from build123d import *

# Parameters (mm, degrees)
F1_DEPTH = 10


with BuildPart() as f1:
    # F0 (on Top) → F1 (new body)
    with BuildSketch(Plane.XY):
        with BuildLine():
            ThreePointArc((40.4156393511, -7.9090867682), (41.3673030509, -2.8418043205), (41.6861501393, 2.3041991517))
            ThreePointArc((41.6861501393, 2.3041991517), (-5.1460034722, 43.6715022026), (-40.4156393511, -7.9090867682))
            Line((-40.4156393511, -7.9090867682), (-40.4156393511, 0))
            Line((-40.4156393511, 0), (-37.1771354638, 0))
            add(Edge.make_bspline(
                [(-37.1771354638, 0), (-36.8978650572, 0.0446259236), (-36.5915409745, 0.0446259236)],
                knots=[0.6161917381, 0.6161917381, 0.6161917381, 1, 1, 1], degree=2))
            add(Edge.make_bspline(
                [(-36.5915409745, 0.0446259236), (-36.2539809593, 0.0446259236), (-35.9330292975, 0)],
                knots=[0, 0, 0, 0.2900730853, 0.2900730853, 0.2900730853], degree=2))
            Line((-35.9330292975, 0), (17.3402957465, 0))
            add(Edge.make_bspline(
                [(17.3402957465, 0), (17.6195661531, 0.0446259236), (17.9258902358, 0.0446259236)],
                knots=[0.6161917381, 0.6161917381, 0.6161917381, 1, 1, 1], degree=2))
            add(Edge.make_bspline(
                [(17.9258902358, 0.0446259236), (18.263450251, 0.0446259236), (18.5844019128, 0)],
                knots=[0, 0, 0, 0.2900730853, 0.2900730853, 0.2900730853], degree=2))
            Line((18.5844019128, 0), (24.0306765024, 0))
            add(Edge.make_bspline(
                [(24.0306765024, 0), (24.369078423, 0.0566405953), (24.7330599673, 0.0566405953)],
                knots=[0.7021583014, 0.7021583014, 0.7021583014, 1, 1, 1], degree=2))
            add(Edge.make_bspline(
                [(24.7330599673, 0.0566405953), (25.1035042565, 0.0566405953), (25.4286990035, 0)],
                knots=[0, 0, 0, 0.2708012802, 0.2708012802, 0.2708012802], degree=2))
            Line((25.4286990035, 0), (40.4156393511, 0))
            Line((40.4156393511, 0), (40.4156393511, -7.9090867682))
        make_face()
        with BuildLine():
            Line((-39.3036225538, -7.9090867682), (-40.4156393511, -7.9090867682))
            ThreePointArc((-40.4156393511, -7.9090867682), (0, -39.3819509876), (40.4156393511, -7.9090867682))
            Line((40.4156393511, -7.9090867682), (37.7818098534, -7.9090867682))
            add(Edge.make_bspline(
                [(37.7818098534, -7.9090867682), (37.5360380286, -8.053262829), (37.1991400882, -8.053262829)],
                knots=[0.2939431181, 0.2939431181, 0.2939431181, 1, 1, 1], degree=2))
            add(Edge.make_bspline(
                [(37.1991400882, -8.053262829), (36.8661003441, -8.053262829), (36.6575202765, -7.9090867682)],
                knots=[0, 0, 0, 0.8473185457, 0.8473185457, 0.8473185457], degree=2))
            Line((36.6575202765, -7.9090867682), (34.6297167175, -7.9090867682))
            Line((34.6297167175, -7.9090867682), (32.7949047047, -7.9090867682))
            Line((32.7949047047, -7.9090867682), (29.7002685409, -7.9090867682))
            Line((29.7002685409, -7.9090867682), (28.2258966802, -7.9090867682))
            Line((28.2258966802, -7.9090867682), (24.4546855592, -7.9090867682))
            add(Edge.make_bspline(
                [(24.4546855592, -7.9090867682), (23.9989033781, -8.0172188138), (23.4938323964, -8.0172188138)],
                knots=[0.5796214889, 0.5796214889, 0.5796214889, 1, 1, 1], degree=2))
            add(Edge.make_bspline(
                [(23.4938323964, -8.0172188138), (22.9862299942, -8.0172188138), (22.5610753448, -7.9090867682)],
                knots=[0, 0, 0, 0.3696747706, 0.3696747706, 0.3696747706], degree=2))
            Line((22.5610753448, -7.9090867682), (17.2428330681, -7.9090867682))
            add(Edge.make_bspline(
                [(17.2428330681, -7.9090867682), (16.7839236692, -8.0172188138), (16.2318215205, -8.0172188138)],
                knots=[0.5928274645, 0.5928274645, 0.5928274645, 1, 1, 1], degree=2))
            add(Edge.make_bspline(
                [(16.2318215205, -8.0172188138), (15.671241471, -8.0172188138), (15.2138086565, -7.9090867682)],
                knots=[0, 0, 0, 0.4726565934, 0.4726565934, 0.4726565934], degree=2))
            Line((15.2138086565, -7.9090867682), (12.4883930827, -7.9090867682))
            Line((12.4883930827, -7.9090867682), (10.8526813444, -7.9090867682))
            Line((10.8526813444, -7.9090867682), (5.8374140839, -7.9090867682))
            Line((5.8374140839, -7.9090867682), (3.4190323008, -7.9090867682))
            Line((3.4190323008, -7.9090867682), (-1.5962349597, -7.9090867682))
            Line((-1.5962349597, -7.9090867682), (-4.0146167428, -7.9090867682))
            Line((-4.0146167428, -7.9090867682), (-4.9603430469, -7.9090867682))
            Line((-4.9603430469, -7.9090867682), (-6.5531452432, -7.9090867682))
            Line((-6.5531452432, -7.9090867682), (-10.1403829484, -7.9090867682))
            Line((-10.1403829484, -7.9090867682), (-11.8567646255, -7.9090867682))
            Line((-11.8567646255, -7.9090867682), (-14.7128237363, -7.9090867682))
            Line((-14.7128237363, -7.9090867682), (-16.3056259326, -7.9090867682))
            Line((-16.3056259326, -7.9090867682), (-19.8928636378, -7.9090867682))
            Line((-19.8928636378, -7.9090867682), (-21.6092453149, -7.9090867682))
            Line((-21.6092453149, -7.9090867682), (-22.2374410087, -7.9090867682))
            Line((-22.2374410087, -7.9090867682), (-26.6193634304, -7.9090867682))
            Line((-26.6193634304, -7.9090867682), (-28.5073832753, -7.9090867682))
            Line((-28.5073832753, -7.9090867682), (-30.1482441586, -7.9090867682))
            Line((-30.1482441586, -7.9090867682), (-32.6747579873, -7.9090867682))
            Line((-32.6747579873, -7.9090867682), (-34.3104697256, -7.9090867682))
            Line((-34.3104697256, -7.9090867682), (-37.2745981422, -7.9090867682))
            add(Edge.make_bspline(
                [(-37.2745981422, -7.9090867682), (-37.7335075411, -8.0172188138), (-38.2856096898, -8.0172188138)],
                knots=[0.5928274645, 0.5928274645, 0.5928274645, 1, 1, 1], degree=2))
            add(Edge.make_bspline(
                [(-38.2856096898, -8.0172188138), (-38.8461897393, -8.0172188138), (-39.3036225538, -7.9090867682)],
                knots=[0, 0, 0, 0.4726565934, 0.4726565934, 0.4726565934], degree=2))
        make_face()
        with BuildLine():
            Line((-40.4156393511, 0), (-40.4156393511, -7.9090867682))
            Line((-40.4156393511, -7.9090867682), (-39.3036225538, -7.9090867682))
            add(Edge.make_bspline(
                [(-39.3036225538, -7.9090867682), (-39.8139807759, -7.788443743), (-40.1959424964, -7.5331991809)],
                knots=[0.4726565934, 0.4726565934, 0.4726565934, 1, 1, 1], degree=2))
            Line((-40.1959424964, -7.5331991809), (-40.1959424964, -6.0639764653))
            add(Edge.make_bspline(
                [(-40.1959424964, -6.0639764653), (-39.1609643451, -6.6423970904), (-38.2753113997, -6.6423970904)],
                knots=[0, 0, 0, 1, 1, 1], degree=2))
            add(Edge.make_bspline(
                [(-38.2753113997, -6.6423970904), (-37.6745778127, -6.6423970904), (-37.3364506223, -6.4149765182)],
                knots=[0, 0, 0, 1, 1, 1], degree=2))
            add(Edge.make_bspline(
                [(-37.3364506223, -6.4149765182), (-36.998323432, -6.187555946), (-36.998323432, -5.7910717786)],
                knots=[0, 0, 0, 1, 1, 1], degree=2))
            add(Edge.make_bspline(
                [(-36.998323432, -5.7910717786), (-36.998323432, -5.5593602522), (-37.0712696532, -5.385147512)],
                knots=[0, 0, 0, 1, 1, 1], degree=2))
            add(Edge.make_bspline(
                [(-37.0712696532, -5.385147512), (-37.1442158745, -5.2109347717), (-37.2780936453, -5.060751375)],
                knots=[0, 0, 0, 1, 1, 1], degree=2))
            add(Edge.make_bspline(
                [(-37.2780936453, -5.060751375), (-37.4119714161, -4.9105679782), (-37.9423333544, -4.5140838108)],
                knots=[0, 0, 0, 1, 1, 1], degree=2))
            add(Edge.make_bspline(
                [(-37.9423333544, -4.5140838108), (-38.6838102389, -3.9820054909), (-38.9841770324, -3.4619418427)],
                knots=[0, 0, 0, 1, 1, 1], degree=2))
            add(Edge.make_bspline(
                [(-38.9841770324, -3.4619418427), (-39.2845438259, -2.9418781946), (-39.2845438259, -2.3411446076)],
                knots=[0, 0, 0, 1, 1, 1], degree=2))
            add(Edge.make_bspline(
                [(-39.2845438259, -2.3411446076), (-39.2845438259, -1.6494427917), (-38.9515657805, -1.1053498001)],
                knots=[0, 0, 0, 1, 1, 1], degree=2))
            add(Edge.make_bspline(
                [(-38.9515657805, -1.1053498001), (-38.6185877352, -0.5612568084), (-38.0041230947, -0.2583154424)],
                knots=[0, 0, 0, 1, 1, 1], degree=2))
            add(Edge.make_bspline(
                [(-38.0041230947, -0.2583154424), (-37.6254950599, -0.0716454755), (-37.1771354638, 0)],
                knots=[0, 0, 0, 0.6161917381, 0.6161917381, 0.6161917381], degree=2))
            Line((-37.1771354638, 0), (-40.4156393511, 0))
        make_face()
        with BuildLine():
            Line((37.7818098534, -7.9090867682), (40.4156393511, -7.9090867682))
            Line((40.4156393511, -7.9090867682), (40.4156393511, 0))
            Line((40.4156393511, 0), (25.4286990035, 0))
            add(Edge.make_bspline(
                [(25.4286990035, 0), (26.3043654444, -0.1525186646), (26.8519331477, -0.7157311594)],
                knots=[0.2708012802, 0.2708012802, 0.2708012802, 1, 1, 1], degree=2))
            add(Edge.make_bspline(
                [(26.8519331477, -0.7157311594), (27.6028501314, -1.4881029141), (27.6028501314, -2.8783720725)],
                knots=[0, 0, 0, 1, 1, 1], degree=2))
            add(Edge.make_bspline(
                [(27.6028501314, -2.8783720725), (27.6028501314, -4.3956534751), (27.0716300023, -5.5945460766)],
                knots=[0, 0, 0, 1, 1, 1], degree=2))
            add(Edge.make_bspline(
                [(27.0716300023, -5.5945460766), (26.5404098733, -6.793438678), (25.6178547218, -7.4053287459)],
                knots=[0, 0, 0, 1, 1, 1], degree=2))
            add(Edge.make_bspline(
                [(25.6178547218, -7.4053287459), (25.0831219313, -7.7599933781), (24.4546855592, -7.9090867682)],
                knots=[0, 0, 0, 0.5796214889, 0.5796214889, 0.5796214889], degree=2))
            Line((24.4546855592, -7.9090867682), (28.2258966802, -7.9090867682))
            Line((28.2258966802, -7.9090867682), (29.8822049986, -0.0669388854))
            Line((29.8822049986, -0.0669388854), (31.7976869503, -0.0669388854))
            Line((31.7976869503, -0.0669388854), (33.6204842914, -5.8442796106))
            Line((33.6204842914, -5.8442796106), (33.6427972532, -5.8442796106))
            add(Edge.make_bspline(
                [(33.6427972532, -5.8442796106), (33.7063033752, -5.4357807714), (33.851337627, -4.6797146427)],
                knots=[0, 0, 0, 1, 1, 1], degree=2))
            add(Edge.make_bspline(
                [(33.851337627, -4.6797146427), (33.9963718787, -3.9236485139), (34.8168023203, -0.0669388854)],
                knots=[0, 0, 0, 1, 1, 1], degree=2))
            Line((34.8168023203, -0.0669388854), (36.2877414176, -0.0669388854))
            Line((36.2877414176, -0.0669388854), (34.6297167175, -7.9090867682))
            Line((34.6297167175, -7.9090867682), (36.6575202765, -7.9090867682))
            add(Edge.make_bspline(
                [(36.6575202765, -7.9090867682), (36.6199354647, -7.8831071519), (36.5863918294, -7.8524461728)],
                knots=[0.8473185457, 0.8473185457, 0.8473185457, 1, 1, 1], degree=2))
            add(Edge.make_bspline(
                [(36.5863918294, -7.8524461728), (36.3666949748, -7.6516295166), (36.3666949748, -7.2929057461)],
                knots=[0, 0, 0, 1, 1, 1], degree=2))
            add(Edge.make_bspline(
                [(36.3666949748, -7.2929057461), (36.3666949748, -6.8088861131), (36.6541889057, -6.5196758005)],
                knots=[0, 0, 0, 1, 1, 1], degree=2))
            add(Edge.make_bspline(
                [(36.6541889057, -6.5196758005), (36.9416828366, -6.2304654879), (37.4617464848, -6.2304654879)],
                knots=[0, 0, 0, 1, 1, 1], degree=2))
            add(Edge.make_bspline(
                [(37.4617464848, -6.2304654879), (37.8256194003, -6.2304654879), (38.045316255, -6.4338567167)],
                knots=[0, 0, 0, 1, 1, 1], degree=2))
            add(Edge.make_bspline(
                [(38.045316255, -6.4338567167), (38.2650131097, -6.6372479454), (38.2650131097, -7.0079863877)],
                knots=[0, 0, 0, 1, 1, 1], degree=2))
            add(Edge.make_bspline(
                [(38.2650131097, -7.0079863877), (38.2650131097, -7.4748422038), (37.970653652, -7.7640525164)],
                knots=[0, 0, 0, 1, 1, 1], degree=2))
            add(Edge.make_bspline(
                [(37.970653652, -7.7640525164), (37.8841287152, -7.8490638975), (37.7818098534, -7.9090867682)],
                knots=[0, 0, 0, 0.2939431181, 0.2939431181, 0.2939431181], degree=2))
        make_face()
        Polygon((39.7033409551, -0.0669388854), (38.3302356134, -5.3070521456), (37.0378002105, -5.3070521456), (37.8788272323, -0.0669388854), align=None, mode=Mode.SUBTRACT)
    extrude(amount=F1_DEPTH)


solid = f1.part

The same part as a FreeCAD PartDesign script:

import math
import FreeCAD as App
import Part
import Sketcher

V = App.Vector

doc = App.newDocument("Part")
body = doc.addObject("PartDesign::Body", "Body")

# Sketch on XY plane
sketch1 = body.newObject("Sketcher::SketchObject", "Sketch")
sketch1.AttachmentSupport = (doc.getObject("XY_Plane"), [""])
sketch1.MapMode = "FlatFace"
sketch1.addGeometry(Part.ArcOfCircle(Part.Circle(V(0, 2.304199, 0), V(0, 0, 1), 41.68615), math.radians(0), math.radians(345.817912)), False)
sketch1.addGeometry(Part.ArcOfCircle(Part.Circle(V(0, 2.304199, 0), V(0, 0, 1), 41.68615), math.radians(-14.182088), math.radians(0)), False)
sketch1.addGeometry(Part.BSplineCurve([V(37.78181, -7.909087, 0), V(37.536038, -8.053263, 0), V(36.8661, -8.053263, 0), V(36.65752, -7.909087, 0)], [3, 1, 3], [0.293943118, 1, 1.697971032], False, 2, [1, 1, 1, 1], False), False)
sketch1.addGeometry(Part.BSplineCurve([V(36.65752, -7.909087, 0), V(36.619935, -7.883107, 0), V(36.586392, -7.852446, 0)], [3, 3], [0.847318546, 1], False, 2, [1, 1, 1], False), False)
sketch1.addGeometry(Part.BSplineCurve([V(36.586392, -7.852446, 0), V(36.366695, -7.65163, 0), V(36.366695, -6.808886, 0), V(36.941683, -6.230465, 0), V(37.825619, -6.230465, 0), V(38.045316, -6.433857, 0)], [3, 1, 1, 1, 3], [0, 1, 2.349282297, 3.698564594, 4.642616894], False, 2, [1, 1, 1, 1, 1, 1], False), False)
sketch1.addGeometry(Part.BSplineCurve([V(38.045316, -6.433857, 0), V(38.265013, -6.637248, 0), V(38.265013, -7.474842, 0), V(37.970654, -7.764053, 0)], [3, 1, 3], [0, 1, 2.259259259], False, 2, [1, 1, 1, 1], False), False)
sketch1.addGeometry(Part.BSplineCurve([V(37.970654, -7.764053, 0), V(37.884129, -7.849064, 0), V(37.78181, -7.909087, 0)], [3, 3], [0, 0.293943118], False, 2, [1, 1, 1], False), False)
sketch1.addGeometry(Part.BSplineCurve([V(24.030677, 0, 0), V(24.369078, 0.056641, 0), V(25.103504, 0.056641, 0), V(25.428699, 0, 0)], [3, 1, 3], [0.702158301, 1, 1.303130085], False, 2, [1, 1, 1, 1], False), False)
sketch1.addGeometry(Part.BSplineCurve([V(25.428699, 0, 0), V(26.304365, -0.152519, 0), V(26.851933, -0.715731, 0)], [3, 3], [0.27080128, 1], False, 2, [1, 1, 1], False), False)
sketch1.addGeometry(Part.BSplineCurve([V(26.851933, -0.715731, 0), V(27.60285, -1.488103, 0), V(27.60285, -4.395653, 0), V(27.07163, -5.594546, 0)], [3, 1, 3], [0, 1, 2.091358025], False, 2, [1, 1, 1, 1], False), False)
sketch1.addGeometry(Part.BSplineCurve([V(27.07163, -5.594546, 0), V(26.54041, -6.793439, 0), V(25.617855, -7.405329, 0)], [3, 3], [0, 1], False, 2, [1, 1, 1], False), False)
sketch1.addGeometry(Part.BSplineCurve([V(25.617855, -7.405329, 0), V(25.083122, -7.759993, 0), V(24.454686, -7.909087, 0)], [3, 3], [0, 0.579621489], False, 2, [1, 1, 1], False), False)
sketch1.addGeometry(Part.BSplineCurve([V(24.454686, -7.909087, 0), V(23.998903, -8.017219, 0), V(22.98623, -8.017219, 0), V(22.561075, -7.909087, 0)], [3, 1, 3], [0.579621489, 1, 1.422485452], False, 2, [1, 1, 1, 1], False), False)
sketch1.addGeometry(Part.LineSegment(V(22.561075, -7.909087, 0), V(17.242833, -7.909087, 0)), False)
sketch1.addGeometry(Part.BSplineCurve([V(17.242833, -7.909087, 0), V(16.783924, -8.017219, 0), V(15.671241, -8.017219, 0), V(15.213809, -7.909087, 0)], [3, 1, 3], [0.592827465, 1, 1.413424944], False, 2, [1, 1, 1, 1], False), False)
sketch1.addGeometry(Part.LineSegment(V(15.213809, -7.909087, 0), V(-37.274598, -7.909087, 0)), False)
sketch1.addGeometry(Part.BSplineCurve([V(-37.274598, -7.909087, 0), V(-37.733508, -8.017219, 0), V(-38.84619, -8.017219, 0), V(-39.303623, -7.909087, 0)], [3, 1, 3], [0.592827465, 1, 1.413424944], False, 2, [1, 1, 1, 1], False), False)
sketch1.addGeometry(Part.BSplineCurve([V(-39.303623, -7.909087, 0), V(-39.813981, -7.788444, 0), V(-40.195942, -7.533199, 0)], [3, 3], [0.472656593, 1], False, 2, [1, 1, 1], False), False)
sketch1.addGeometry(Part.LineSegment(V(-40.195942, -7.533199, 0), V(-40.195942, -6.063976, 0)), False)
sketch1.addGeometry(Part.BSplineCurve([V(-40.195942, -6.063976, 0), V(-39.160964, -6.642397, 0), V(-37.674578, -6.642397, 0), V(-37.336451, -6.414977, 0)], [3, 1, 3], [0, 1, 1.678294574], False, 2, [1, 1, 1, 1], False), False)
sketch1.addGeometry(Part.BSplineCurve([V(-37.336451, -6.414977, 0), V(-36.998323, -6.187556, 0), V(-36.998323, -5.55936, 0), V(-37.07127, -5.385148, 0)], [3, 1, 3], [0, 1, 1.584415584], False, 2, [1, 1, 1, 1], False), False)
sketch1.addGeometry(Part.BSplineCurve([V(-37.07127, -5.385148, 0), V(-37.144216, -5.210935, 0), V(-37.278094, -5.060751, 0)], [3, 3], [0, 1], False, 2, [1, 1, 1], False), False)
sketch1.addGeometry(Part.BSplineCurve([V(-37.278094, -5.060751, 0), V(-37.411971, -4.910568, 0), V(-37.942333, -4.514084, 0)], [3, 3], [0, 1], False, 2, [1, 1, 1], False), False)
sketch1.addGeometry(Part.BSplineCurve([V(-37.942333, -4.514084, 0), V(-38.68381, -3.982005, 0), V(-38.984177, -3.461942, 0)], [3, 3], [0, 1], False, 2, [1, 1, 1], False), False)
sketch1.addGeometry(Part.BSplineCurve([V(-38.984177, -3.461942, 0), V(-39.284544, -2.941878, 0), V(-39.284544, -1.649443, 0), V(-38.951566, -1.10535, 0)], [3, 1, 3], [0, 1, 2.151428571], False, 2, [1, 1, 1, 1], False), False)
sketch1.addGeometry(Part.BSplineCurve([V(-38.951566, -1.10535, 0), V(-38.618588, -0.561257, 0), V(-38.004123, -0.258315, 0)], [3, 3], [0, 1], False, 2, [1, 1, 1], False), False)
sketch1.addGeometry(Part.BSplineCurve([V(-38.004123, -0.258315, 0), V(-37.625495, -0.071645, 0), V(-37.177135, 0, 0)], [3, 3], [0, 0.616191738], False, 2, [1, 1, 1], False), False)
sketch1.addGeometry(Part.BSplineCurve([V(-37.177135, 0, 0), V(-36.897865, 0.044626, 0), V(-36.253981, 0.044626, 0), V(-35.933029, 0, 0)], [3, 1, 3], [0.616191738, 1, 1.422945273], False, 2, [1, 1, 1, 1], False), False)
sketch1.addGeometry(Part.LineSegment(V(-35.933029, 0, 0), V(17.340296, 0, 0)), False)
sketch1.addGeometry(Part.BSplineCurve([V(17.340296, 0, 0), V(17.619566, 0.044626, 0), V(18.26345, 0.044626, 0), V(18.584402, 0, 0)], [3, 1, 3], [0.616191738, 1, 1.422945273], False, 2, [1, 1, 1, 1], False), False)
sketch1.addGeometry(Part.LineSegment(V(18.584402, 0, 0), V(24.030677, 0, 0)), False)
sketch1.addGeometry(Part.LineSegment(V(34.629717, -7.909087, 0), V(28.225897, -7.909087, 0)), False)
sketch1.addGeometry(Part.LineSegment(V(28.225897, -7.909087, 0), V(29.882205, -0.066939, 0)), False)
sketch1.addGeometry(Part.LineSegment(V(29.882205, -0.066939, 0), V(31.797687, -0.066939, 0)), False)
sketch1.addGeometry(Part.LineSegment(V(31.797687, -0.066939, 0), V(33.620484, -5.84428, 0)), False)
sketch1.addGeometry(Part.LineSegment(V(33.620484, -5.84428, 0), V(33.642797, -5.84428, 0)), False)
sketch1.addGeometry(Part.BSplineCurve([V(33.642797, -5.84428, 0), V(33.706303, -5.435781, 0), V(33.851338, -4.679715, 0)], [3, 3], [0, 1], False, 2, [1, 1, 1], False), False)
sketch1.addGeometry(Part.BSplineCurve([V(33.851338, -4.679715, 0), V(33.996372, -3.923649, 0), V(34.816802, -0.066939, 0)], [3, 3], [0, 1], False, 2, [1, 1, 1], False), False)
sketch1.addGeometry(Part.LineSegment(V(34.816802, -0.066939, 0), V(36.287741, -0.066939, 0)), False)
sketch1.addGeometry(Part.LineSegment(V(36.287741, -0.066939, 0), V(34.629717, -7.909087, 0)), False)
sketch1.addGeometry(Part.LineSegment(V(37.878827, -0.066939, 0), V(39.703341, -0.066939, 0)), False)
sketch1.addGeometry(Part.LineSegment(V(39.703341, -0.066939, 0), V(38.330236, -5.307052, 0)), False)
sketch1.addGeometry(Part.LineSegment(V(38.330236, -5.307052, 0), V(37.0378, -5.307052, 0)), False)
sketch1.addGeometry(Part.LineSegment(V(37.0378, -5.307052, 0), V(37.878827, -0.066939, 0)), False)
sketch1.addConstraint(Sketcher.Constraint("Block", 2))
sketch1.addConstraint(Sketcher.Constraint("Block", 3))
sketch1.addConstraint(Sketcher.Constraint("Block", 4))
sketch1.addConstraint(Sketcher.Constraint("Block", 5))
sketch1.addConstraint(Sketcher.Constraint("Block", 6))
sketch1.addConstraint(Sketcher.Constraint("Block", 7))
sketch1.addConstraint(Sketcher.Constraint("Block", 8))
sketch1.addConstraint(Sketcher.Constraint("Block", 9))
sketch1.addConstraint(Sketcher.Constraint("Block", 10))
sketch1.addConstraint(Sketcher.Constraint("Block", 11))
sketch1.addConstraint(Sketcher.Constraint("Block", 12))
sketch1.addConstraint(Sketcher.Constraint("Block", 14))
sketch1.addConstraint(Sketcher.Constraint("Block", 16))
sketch1.addConstraint(Sketcher.Constraint("Block", 17))
sketch1.addConstraint(Sketcher.Constraint("Block", 19))
sketch1.addConstraint(Sketcher.Constraint("Block", 20))
sketch1.addConstraint(Sketcher.Constraint("Block", 21))
sketch1.addConstraint(Sketcher.Constraint("Block", 22))
sketch1.addConstraint(Sketcher.Constraint("Block", 23))
sketch1.addConstraint(Sketcher.Constraint("Block", 24))
sketch1.addConstraint(Sketcher.Constraint("Block", 25))
sketch1.addConstraint(Sketcher.Constraint("Block", 26))
sketch1.addConstraint(Sketcher.Constraint("Block", 27))
sketch1.addConstraint(Sketcher.Constraint("Block", 29))
sketch1.addConstraint(Sketcher.Constraint("Block", 36))
sketch1.addConstraint(Sketcher.Constraint("Block", 37))
sketch1.addConstraint(Sketcher.Constraint("Coincident", 0, 1, 1, 2))
sketch1.addConstraint(Sketcher.Constraint("Coincident", 1, 1, 0, 2))
sketch1.addConstraint(Sketcher.Constraint("Coincident", 12, 2, 13, 1))
sketch1.addConstraint(Sketcher.Constraint("Coincident", 13, 2, 14, 1))
sketch1.addConstraint(Sketcher.Constraint("Coincident", 14, 2, 15, 1))
sketch1.addConstraint(Sketcher.Constraint("Coincident", 15, 2, 16, 1))
sketch1.addConstraint(Sketcher.Constraint("Coincident", 17, 2, 18, 1))
sketch1.addConstraint(Sketcher.Constraint("Coincident", 18, 2, 19, 1))
sketch1.addConstraint(Sketcher.Constraint("Coincident", 27, 2, 28, 1))
sketch1.addConstraint(Sketcher.Constraint("Coincident", 28, 2, 29, 1))
sketch1.addConstraint(Sketcher.Constraint("Coincident", 29, 2, 30, 1))
sketch1.addConstraint(Sketcher.Constraint("Coincident", 30, 2, 7, 1))
sketch1.addConstraint(Sketcher.Constraint("Coincident", 31, 2, 32, 1))
sketch1.addConstraint(Sketcher.Constraint("Coincident", 32, 2, 33, 1))
sketch1.addConstraint(Sketcher.Constraint("Coincident", 33, 2, 34, 1))
sketch1.addConstraint(Sketcher.Constraint("Coincident", 34, 2, 35, 1))
sketch1.addConstraint(Sketcher.Constraint("Coincident", 35, 2, 36, 1))
sketch1.addConstraint(Sketcher.Constraint("Coincident", 37, 2, 38, 1))
sketch1.addConstraint(Sketcher.Constraint("Coincident", 38, 2, 39, 1))
sketch1.addConstraint(Sketcher.Constraint("Coincident", 39, 2, 31, 1))
sketch1.addConstraint(Sketcher.Constraint("Coincident", 40, 2, 41, 1))
sketch1.addConstraint(Sketcher.Constraint("Coincident", 41, 2, 42, 1))
sketch1.addConstraint(Sketcher.Constraint("Coincident", 42, 2, 43, 1))
sketch1.addConstraint(Sketcher.Constraint("Coincident", 43, 2, 40, 1))
sketch1.addConstraint(Sketcher.Constraint("Horizontal", 31))
sketch1.addConstraint(Sketcher.Constraint("Horizontal", 33))
sketch1.addConstraint(Sketcher.Constraint("Horizontal", 35))
sketch1.addConstraint(Sketcher.Constraint("Horizontal", 38))
sketch1.addConstraint(Sketcher.Constraint("Horizontal", 40))
sketch1.addConstraint(Sketcher.Constraint("Horizontal", 42))
sketch1.addConstraint(Sketcher.Constraint("PointOnObject", 0, 3, -2))
sketch1.addConstraint(Sketcher.Constraint("PointOnObject", 1, 3, -2))
sketch1.addConstraint(Sketcher.Constraint("Radius", 0, 41.68615))
sketch1.addConstraint(Sketcher.Constraint("DistanceX", 31, 2, 31, 1, 6.40382))
sketch1.addConstraint(Sketcher.Constraint("DistanceX", 33, 1, 33, 2, 1.915482))
sketch1.addConstraint(Sketcher.Constraint("DistanceX", 38, 1, 38, 2, 1.470939))
sketch1.addConstraint(Sketcher.Constraint("DistanceY", -1, 1, 0, 3, 2.304199))
sketch1.addConstraint(Sketcher.Constraint("DistanceY", -1, 1, 0, 1, 2.304199))
sketch1.addConstraint(Sketcher.Constraint("DistanceX", -1, 1, 42, 2, 37.0378))
sketch1.addConstraint(Sketcher.Constraint("DistanceX", 28, 2, 31, 2, 10.885601))
sketch1.addConstraint(Sketcher.Constraint("DistanceX", 38, 2, 40, 2, 3.4156))
sketch1.addConstraint(Sketcher.Constraint("DistanceX", 40, 2, 1, 1, 0.712298))
sketch1.addConstraint(Sketcher.Constraint("Distance", 32, 8.015151))
sketch1.addConstraint(Sketcher.Constraint("Distance", 41, 5.417029))
sketch1.addConstraint(Sketcher.Constraint("DistanceX", 35, 1, 35, 2, 0.022313))
sketch1.addConstraint(Sketcher.Constraint("DistanceX", 40, 1, 40, 2, 1.824514))
sketch1.addConstraint(Sketcher.Constraint("DistanceX", 42, 2, 42, 1, 1.292435))
sketch1.addConstraint(Sketcher.Constraint("DistanceY", 32, 2, -1, 1, 0.066939))
sketch1.addConstraint(Sketcher.Constraint("DistanceY", 40, 2, -1, 1, 0.066939))
sketch1.addConstraint(Sketcher.Constraint("DistanceX", 30, 2, 32, 2, 5.851528))
pad1 = body.newObject("PartDesign::Pad", "Pad")
pad1.Profile = sketch1
pad1.Length = 10

doc.recompute()
